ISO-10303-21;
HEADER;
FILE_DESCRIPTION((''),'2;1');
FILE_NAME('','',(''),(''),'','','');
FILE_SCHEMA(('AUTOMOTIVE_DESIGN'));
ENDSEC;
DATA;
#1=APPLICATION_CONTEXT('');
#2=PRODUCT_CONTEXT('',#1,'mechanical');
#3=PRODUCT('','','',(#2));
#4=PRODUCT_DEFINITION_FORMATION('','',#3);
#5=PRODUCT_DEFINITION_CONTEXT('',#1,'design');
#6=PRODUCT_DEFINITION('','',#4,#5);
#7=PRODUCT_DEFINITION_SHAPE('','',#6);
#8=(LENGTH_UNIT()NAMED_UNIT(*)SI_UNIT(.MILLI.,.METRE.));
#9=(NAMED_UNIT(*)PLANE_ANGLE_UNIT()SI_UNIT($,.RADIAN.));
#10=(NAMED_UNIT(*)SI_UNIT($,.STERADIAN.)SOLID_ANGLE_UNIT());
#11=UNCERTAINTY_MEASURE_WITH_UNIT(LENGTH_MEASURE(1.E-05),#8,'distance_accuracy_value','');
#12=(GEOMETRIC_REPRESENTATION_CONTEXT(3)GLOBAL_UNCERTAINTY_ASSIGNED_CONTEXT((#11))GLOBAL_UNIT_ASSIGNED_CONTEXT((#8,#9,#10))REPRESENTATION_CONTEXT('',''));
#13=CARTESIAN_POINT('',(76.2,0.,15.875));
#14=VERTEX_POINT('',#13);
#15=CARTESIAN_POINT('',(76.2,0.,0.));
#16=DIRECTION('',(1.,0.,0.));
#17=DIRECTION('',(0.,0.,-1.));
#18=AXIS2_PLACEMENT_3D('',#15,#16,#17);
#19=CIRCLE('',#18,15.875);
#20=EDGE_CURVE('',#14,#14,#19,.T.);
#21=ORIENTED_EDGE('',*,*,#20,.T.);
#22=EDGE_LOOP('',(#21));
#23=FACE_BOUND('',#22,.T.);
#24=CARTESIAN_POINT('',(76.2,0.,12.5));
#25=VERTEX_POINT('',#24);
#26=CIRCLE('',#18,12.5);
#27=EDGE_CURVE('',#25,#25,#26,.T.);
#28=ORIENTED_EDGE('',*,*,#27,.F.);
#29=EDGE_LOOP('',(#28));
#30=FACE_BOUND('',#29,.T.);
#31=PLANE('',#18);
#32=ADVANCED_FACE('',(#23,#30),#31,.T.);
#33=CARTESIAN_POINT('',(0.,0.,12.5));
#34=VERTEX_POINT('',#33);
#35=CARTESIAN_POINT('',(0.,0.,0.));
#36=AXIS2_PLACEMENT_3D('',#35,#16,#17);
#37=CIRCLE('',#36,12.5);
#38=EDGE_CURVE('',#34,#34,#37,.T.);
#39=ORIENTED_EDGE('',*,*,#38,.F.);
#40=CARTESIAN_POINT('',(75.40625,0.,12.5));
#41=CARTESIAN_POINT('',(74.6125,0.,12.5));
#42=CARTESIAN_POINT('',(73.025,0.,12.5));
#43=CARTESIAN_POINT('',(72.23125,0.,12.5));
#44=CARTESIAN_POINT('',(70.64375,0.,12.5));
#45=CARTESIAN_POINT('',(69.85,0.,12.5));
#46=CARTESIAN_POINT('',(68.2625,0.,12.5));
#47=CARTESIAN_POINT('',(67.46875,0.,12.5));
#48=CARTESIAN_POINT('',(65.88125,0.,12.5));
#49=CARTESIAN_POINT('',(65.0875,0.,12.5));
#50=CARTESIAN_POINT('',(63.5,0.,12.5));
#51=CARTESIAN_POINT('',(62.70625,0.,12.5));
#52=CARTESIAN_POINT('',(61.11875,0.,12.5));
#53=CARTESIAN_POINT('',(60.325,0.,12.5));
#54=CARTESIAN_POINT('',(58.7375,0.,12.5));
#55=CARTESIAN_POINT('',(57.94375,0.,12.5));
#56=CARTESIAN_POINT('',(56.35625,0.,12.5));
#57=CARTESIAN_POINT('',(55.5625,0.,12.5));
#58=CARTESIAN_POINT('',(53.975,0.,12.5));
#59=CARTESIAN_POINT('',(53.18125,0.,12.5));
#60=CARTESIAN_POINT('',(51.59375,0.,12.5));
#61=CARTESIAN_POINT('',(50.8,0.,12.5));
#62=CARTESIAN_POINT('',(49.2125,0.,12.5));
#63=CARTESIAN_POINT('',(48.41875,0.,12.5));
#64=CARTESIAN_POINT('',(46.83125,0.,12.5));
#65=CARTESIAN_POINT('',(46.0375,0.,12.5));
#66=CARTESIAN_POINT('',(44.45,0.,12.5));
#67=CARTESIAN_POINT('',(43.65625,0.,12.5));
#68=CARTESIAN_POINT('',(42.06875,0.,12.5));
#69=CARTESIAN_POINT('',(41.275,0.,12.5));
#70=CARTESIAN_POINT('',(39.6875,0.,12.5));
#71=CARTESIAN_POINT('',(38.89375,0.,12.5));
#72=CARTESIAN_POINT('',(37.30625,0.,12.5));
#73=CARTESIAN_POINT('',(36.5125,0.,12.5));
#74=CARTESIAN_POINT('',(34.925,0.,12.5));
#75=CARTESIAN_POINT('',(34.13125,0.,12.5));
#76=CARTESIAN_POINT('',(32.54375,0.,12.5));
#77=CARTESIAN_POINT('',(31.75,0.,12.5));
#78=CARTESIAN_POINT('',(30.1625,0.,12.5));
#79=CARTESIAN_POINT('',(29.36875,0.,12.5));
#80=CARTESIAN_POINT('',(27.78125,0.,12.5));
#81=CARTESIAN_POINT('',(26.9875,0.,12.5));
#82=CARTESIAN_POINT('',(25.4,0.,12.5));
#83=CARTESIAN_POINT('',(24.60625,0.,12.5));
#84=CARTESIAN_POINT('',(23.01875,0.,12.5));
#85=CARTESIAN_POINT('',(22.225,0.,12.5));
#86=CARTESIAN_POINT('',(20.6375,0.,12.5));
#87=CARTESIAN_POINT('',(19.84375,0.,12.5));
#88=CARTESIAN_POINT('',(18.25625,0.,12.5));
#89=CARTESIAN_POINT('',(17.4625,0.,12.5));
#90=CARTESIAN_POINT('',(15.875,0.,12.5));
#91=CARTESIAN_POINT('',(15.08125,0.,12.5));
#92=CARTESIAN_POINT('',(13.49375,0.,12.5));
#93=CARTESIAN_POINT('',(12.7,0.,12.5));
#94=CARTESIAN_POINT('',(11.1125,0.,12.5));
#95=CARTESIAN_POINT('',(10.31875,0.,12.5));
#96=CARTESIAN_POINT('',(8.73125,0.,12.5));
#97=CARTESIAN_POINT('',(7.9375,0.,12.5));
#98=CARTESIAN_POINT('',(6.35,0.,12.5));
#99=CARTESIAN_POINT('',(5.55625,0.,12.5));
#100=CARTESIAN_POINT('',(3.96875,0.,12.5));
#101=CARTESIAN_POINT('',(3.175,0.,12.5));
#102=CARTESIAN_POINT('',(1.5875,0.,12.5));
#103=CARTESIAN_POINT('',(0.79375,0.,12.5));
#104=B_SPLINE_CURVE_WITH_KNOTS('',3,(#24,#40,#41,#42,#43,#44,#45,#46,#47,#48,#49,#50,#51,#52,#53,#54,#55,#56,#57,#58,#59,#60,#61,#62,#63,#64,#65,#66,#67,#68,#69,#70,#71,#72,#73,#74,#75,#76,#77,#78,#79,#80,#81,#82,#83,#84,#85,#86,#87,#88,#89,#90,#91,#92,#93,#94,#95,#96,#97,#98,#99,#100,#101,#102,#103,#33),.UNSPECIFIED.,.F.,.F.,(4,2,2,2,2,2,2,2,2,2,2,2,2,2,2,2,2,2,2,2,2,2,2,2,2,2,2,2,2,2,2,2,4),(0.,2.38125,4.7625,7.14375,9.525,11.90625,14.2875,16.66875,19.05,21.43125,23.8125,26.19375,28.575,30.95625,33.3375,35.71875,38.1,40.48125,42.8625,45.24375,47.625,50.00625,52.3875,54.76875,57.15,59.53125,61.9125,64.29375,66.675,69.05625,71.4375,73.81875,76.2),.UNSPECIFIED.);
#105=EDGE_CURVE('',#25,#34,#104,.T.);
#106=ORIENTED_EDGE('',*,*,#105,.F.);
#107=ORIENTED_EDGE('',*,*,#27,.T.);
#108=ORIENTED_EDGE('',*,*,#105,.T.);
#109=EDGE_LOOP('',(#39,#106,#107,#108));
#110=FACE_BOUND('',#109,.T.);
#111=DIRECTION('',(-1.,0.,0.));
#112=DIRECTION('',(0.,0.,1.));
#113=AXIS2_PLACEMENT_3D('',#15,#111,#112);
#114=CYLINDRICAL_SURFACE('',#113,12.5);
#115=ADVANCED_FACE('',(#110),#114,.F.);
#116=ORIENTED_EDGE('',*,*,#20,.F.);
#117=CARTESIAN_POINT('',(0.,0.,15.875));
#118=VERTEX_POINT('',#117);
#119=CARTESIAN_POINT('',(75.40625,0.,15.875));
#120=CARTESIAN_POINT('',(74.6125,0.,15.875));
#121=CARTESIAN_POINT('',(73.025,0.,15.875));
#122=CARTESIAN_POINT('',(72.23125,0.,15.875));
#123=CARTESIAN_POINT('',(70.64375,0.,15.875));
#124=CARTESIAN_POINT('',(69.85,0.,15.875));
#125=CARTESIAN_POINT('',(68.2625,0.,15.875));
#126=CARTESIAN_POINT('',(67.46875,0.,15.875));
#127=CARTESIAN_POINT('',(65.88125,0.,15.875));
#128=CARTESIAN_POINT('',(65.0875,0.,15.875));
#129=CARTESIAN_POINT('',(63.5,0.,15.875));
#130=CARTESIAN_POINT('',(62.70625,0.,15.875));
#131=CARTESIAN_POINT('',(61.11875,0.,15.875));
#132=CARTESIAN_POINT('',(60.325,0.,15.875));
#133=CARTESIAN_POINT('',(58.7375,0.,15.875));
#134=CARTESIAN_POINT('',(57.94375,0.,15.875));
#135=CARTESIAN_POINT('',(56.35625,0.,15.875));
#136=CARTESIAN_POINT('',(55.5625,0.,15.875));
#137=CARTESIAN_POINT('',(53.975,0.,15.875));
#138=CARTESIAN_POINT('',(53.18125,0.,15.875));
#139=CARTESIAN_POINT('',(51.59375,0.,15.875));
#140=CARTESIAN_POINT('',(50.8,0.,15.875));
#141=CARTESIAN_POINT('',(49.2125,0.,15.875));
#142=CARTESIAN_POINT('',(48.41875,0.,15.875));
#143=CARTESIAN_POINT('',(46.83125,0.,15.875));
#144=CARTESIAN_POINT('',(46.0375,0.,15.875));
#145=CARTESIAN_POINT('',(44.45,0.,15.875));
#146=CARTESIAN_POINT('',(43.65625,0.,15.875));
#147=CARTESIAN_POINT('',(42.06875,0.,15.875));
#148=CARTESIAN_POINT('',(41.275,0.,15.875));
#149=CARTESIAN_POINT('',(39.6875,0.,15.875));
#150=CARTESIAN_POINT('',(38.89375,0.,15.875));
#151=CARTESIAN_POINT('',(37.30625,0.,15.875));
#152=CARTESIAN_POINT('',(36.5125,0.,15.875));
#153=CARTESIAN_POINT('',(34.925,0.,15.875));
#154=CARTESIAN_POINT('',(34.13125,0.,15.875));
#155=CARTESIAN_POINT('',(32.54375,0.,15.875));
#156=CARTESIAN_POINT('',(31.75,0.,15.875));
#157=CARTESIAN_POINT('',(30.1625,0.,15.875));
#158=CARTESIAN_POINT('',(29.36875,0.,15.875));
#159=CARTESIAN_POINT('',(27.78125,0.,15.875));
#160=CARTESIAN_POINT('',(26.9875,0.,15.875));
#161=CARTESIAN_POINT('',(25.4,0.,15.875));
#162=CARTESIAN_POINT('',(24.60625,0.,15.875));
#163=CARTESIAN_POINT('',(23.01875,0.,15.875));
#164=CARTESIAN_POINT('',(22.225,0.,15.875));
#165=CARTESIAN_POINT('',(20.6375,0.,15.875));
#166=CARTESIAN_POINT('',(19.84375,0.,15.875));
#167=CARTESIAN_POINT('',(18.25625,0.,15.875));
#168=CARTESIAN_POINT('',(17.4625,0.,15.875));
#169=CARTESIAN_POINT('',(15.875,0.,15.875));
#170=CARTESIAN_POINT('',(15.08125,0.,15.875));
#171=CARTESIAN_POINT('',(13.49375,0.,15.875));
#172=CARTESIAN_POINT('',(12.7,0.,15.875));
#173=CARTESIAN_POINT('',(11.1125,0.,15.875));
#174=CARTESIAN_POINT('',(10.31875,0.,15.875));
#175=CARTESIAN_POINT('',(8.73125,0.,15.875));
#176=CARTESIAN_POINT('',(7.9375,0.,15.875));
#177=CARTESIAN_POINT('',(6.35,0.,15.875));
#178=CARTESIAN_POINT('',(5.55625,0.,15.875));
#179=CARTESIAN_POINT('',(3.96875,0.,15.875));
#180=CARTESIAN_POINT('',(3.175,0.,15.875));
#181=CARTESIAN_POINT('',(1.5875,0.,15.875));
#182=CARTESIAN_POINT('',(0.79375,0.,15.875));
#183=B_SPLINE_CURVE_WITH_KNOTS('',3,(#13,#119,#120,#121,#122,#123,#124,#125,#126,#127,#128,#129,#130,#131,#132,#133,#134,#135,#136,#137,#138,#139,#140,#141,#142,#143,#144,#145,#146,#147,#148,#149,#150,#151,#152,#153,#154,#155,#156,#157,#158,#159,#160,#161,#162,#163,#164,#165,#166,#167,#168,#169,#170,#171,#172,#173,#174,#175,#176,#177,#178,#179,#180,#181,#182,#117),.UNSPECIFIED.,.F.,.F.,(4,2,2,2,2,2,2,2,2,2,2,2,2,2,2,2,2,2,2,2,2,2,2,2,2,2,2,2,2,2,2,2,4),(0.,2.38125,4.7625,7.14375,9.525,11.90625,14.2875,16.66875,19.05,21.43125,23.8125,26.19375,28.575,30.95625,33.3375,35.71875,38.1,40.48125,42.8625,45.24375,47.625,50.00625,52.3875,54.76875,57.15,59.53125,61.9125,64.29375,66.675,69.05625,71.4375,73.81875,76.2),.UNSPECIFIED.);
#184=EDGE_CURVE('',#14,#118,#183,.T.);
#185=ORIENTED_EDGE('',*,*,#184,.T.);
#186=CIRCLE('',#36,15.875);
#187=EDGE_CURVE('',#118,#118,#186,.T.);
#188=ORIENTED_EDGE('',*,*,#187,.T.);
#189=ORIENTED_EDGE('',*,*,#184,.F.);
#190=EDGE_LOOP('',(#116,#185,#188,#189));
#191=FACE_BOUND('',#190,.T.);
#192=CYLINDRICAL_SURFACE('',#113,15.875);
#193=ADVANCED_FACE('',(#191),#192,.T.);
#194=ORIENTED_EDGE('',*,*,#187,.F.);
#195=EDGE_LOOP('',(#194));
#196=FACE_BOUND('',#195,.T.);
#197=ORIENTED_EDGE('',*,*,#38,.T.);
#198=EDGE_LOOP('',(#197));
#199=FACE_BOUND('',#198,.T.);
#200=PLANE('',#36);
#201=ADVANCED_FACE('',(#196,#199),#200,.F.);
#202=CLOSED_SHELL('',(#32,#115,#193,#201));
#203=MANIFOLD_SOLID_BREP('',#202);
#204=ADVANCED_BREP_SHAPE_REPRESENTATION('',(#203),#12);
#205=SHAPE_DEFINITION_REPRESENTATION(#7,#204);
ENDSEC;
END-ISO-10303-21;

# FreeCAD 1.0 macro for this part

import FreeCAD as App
import Part
import Sketcher

V = App.Vector
Q = App.Units.Quantity

doc = App.newDocument("Part")
body = doc.addObject("PartDesign::Body", "Body")

# Sketch on YZ plane
sketch1 = body.newObject("Sketcher::SketchObject", "Sketch")
sketch1.AttachmentSupport = (doc.getObject("YZ_Plane"), [""])
sketch1.MapMode = "FlatFace"
sketch1.addGeometry([
    Part.Circle(V(0, 0, 0), V(0, 0, 1), 16),
    Part.Circle(V(0, 0, 0), V(0, 0, 1), 12),
], False)
sketch1.addConstraint([
    Sketcher.Constraint("Coincident", 0, 3, -1, 1),
    Sketcher.Constraint("Coincident", 1, 3, -1, 1),
    Sketcher.Constraint("Diameter", 0, Q("1.25 in")),
    Sketcher.Constraint("Diameter", 1, 25.0),
])
pad1 = body.newObject("PartDesign::Pad", "Pad")
pad1.Profile = sketch1
pad1.Length = Q("3 in")

doc.recompute()
